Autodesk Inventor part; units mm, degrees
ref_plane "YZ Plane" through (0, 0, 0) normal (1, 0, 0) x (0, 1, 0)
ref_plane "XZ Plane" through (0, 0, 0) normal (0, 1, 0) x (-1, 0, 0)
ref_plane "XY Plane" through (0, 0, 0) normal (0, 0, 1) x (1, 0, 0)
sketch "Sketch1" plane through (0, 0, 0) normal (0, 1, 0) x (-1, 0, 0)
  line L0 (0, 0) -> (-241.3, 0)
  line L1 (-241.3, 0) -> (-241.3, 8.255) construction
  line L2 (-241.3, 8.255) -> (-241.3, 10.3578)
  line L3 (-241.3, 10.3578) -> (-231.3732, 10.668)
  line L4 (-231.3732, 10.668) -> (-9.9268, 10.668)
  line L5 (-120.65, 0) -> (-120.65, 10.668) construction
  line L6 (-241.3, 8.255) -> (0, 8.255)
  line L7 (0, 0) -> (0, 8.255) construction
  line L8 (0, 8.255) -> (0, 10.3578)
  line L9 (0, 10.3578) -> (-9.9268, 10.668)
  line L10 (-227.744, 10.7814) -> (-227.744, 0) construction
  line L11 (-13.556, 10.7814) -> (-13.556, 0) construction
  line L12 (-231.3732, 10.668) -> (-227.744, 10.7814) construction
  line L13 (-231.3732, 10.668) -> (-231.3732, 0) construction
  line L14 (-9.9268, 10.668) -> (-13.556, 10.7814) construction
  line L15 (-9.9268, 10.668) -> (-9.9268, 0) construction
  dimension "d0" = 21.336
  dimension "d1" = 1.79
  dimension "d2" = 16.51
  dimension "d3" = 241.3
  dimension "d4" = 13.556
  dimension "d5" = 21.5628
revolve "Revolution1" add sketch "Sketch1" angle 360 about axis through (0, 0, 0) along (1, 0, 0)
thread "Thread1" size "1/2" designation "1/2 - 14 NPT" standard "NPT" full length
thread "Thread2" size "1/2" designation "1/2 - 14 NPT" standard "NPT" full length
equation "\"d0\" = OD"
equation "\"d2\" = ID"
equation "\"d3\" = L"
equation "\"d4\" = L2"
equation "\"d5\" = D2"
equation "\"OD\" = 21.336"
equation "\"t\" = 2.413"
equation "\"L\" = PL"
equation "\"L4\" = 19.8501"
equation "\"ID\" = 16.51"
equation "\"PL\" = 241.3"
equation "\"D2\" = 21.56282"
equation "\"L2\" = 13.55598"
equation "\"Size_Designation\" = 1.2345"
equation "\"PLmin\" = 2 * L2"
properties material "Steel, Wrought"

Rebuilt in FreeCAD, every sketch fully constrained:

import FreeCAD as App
import Part
import Sketcher
from FreeCAD import Vector
Q = App.Units.Quantity


def add_polygon(sketch, points):
    """Adds a closed chain of lines whose ends are joined by coincident constraints."""
    first, n = sketch.GeometryCount, len(points)
    for a, b in zip(points, points[1:] + points[:1]):
        sketch.addGeometry(Part.LineSegment(App.Vector(*a, 0), App.Vector(*b, 0)), False)
    for i in range(n):
        sketch.addConstraint(Sketcher.Constraint("Coincident", first + i, 2, first + (i + 1) % n, 1))

doc = App.newDocument("Part")
params = doc.addObject("Spreadsheet::Sheet", "Params")
for row, (alias, value) in enumerate([
    ("sketch1_width", "9.5 in"),
    ("sketch1_length", "0.391 in"),
    ("revolution_angle", "360 deg"),
], start=1):
    params.set(f"A{row}", alias)
    params.set(f"B{row}", "=" + value)
    params.setAlias(f"B{row}", alias)

body = doc.addObject("PartDesign::Body", "Body")

sketch1 = body.newObject("Sketcher::SketchObject", "Sketch")
sketch1.AttachmentSupport = (doc.getObject("XZ_Plane"), [""])
sketch1.MapMode = "FlatFace"
add_polygon(sketch1, [(241.3, 10.4), (241.3, 8.3), (0, 8.3), (0, 10.4), (9.9, 10.7), (231.4, 10.7)])
sketch1.addConstraint([
    Sketcher.Constraint("Vertical", 0),
    Sketcher.Constraint("Horizontal", 1),
    Sketcher.Constraint("Vertical", 2),
    Sketcher.Constraint("Horizontal", 4),
    Sketcher.Constraint("PointOnObject", 1, 2, -2),
    Sketcher.Constraint("Horizontal", 2, 2, 5, 2),
    Sketcher.Constraint("Equal", 3, 5),
    Sketcher.Constraint("DistanceX", 1, 2, 1, 1, Q("9.5 in")),
    Sketcher.Constraint("Angle", 3, Q("1.7898 deg")),
    Sketcher.Constraint("DistanceY", -1, 1, 3, 2, Q("0.42 in")),
    Sketcher.Constraint("Distance", 3, Q("0.391 in")),
    Sketcher.Constraint("DistanceY", -1, 1, 0, 2, Q("0.325 in")),
])
sketch1.setExpression("Constraints[13]", "Params.sketch1_width")
sketch1.setExpression("Constraints[16]", "Params.sketch1_length")
revolution = body.newObject("PartDesign::Revolution", "Revolution")
revolution.Profile = sketch1
revolution.ReferenceAxis = (sketch1, ["H_Axis"])
revolution.setExpression("Angle", "Params.revolution_angle")

doc.recompute()
